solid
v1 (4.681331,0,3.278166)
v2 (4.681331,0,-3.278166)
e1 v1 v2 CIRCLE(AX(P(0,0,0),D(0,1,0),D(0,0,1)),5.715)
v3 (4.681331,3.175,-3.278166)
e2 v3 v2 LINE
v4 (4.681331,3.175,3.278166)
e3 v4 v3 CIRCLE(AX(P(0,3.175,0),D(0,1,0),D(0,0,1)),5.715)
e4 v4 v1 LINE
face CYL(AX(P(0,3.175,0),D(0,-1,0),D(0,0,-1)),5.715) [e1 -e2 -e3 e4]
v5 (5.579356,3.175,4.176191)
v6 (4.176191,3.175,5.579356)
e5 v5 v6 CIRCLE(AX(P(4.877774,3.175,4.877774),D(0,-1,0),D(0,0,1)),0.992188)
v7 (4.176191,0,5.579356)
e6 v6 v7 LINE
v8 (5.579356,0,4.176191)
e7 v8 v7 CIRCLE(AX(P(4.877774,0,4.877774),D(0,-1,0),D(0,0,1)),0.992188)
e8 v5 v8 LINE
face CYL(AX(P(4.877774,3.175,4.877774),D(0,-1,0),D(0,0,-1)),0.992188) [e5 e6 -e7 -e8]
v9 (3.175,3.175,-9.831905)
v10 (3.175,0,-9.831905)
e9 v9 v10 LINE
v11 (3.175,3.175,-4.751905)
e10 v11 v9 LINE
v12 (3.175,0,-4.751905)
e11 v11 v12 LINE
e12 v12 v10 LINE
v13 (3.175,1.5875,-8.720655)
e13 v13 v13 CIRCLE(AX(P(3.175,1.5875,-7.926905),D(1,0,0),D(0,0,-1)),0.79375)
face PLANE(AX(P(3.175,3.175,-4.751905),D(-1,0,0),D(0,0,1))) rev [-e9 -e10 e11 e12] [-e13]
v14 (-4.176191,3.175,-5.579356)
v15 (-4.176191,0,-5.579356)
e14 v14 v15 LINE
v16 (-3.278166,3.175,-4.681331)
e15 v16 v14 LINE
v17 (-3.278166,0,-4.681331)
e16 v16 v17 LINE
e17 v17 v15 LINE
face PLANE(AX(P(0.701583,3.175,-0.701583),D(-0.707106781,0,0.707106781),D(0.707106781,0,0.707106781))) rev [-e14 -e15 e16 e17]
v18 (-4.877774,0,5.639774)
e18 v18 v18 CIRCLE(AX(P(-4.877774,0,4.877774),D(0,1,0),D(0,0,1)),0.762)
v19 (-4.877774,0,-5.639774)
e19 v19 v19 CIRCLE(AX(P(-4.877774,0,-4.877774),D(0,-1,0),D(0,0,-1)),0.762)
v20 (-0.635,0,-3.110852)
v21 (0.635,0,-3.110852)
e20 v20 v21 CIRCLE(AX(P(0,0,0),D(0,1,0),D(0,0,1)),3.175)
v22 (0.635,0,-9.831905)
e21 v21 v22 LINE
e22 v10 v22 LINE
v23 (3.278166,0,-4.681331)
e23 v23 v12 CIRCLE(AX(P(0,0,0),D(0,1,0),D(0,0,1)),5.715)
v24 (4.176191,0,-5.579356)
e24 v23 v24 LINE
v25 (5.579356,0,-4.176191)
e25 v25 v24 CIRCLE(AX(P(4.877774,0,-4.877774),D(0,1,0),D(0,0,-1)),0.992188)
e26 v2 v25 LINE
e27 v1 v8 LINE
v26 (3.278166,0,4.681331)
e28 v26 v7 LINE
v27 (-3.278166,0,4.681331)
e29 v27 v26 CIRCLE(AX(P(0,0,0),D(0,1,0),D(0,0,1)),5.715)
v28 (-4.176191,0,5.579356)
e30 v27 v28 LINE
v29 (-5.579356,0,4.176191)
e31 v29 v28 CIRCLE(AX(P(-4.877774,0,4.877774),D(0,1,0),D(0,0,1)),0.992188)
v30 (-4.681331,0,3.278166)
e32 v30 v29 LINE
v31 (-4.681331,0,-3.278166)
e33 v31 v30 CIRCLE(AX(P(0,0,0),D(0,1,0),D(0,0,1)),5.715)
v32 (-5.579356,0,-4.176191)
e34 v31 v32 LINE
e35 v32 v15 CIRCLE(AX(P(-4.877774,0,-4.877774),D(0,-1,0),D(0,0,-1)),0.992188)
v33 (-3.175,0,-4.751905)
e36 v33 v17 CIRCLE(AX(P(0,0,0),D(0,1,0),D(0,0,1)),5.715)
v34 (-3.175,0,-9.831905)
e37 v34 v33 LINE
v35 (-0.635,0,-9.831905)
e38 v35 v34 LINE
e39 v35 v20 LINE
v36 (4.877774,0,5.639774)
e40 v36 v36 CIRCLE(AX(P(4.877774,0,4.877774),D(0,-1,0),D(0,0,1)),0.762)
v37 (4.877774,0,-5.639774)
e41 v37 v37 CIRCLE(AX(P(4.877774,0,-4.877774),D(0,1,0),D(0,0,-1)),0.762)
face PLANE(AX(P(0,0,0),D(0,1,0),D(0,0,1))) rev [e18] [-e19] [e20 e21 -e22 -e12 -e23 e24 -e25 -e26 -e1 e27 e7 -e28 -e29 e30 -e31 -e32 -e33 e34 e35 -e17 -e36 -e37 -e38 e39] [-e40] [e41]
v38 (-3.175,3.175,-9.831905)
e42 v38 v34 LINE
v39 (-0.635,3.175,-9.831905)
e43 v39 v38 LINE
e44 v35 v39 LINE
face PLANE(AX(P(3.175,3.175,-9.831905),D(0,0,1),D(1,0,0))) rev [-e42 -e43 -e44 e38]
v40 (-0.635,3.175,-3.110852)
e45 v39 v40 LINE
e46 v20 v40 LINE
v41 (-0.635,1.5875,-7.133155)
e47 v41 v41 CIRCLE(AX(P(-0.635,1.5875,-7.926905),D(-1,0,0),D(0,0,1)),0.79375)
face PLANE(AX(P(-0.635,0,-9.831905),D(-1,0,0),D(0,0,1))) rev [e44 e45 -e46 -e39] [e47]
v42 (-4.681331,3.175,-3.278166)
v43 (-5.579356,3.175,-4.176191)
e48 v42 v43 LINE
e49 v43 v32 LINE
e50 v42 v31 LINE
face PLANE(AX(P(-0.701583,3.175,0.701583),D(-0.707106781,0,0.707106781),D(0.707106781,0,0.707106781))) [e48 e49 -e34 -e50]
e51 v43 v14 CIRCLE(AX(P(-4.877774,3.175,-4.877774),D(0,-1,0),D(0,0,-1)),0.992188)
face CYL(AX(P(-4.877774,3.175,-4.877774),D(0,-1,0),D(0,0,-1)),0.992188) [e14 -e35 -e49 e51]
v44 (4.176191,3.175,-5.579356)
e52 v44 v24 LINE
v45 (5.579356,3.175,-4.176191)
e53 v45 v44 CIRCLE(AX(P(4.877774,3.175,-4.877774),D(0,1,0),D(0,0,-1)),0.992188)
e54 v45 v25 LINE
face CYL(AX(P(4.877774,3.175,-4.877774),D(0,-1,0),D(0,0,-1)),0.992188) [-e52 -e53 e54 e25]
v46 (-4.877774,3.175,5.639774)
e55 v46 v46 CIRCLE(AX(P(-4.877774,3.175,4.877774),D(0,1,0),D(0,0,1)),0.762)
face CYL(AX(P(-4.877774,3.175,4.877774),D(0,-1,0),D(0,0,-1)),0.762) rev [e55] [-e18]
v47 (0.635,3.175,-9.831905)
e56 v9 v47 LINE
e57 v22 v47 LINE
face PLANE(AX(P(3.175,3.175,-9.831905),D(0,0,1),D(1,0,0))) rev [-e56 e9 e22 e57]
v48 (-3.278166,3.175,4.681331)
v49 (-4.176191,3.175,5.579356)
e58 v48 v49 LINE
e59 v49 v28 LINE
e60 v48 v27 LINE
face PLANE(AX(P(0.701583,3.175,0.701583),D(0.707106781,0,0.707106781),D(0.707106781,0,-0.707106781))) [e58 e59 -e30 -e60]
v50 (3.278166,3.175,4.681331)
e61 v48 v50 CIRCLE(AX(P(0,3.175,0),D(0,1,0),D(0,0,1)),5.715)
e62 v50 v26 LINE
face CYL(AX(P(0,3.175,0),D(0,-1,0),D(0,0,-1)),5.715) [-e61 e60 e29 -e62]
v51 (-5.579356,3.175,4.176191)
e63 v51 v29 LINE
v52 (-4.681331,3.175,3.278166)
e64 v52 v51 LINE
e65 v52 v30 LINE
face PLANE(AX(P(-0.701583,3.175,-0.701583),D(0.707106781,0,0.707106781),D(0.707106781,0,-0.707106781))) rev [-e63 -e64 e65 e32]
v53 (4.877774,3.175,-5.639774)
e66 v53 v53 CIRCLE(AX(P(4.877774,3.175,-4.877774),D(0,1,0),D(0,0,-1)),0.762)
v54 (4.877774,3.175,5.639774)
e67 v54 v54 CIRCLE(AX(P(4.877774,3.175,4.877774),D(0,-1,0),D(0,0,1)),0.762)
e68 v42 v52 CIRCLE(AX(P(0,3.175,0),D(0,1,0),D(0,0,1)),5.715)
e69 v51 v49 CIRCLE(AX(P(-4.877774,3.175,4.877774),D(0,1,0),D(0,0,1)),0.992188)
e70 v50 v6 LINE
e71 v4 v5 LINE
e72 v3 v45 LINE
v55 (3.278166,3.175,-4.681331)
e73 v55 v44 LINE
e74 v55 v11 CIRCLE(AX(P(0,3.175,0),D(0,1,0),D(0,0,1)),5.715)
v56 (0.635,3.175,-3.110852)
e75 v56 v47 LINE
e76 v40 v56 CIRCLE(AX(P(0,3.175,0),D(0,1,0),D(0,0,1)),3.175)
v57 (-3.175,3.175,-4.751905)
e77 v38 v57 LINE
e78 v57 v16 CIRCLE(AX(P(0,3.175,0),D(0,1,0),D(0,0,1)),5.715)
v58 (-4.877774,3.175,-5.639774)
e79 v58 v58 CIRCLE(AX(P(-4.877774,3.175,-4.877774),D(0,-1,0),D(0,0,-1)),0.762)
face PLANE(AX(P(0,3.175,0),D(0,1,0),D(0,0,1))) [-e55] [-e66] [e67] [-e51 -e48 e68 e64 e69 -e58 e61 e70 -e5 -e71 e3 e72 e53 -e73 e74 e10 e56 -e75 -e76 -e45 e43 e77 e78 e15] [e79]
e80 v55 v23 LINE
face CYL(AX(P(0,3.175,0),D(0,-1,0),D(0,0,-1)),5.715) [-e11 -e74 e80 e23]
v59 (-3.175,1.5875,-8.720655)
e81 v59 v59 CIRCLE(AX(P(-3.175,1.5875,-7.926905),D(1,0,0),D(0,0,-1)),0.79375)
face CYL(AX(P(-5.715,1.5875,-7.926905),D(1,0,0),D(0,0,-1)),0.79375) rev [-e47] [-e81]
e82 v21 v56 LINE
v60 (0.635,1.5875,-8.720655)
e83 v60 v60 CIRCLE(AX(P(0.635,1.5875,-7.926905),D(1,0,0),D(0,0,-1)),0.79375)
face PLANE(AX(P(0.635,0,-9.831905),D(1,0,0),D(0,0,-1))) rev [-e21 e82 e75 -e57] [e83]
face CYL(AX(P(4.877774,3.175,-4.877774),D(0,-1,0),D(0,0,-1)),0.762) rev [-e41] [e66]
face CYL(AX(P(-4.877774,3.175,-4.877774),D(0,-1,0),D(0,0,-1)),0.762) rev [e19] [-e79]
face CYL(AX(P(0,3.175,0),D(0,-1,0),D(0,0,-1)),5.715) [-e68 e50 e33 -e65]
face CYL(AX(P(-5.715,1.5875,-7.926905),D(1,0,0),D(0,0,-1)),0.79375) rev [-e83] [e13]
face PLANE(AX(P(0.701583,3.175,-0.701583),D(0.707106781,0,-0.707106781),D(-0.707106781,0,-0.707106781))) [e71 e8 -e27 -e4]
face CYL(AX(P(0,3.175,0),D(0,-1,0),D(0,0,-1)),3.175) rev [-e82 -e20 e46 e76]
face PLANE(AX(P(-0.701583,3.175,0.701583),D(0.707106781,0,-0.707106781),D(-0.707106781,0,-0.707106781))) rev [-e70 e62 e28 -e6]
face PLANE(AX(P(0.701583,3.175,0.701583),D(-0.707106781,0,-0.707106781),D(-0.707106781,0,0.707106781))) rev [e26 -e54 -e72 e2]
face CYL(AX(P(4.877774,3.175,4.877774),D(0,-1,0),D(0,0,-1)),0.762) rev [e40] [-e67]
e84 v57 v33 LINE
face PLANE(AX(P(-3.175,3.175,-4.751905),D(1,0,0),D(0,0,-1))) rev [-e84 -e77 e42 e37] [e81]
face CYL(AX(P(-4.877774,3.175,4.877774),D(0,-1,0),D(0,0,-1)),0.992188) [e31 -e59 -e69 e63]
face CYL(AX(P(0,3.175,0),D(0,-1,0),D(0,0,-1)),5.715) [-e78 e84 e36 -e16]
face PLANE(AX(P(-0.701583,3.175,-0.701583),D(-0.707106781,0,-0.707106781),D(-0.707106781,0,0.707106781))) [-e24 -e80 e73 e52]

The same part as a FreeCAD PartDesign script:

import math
import FreeCAD as App
import Part
import Sketcher
from FreeCAD import Vector
Q = App.Units.Quantity

doc = App.newDocument("Part")
params = doc.addObject("Spreadsheet::Sheet", "Params")
for row, (alias, value) in enumerate([
    ("sketch1_diameter", "0.25 in"),
    ("sketch1_height", "0.2 in"),
    ("sketch1_radius", "0.225 in"),
    ("sketch1_width", "0.25 in"),
    ("pad1_length", "0.125 in"),
    ("sketch2_width", "0.05 in"),
    ("pocket1_length", "0.125 in"),
    ("sketch3_diameter", "0.0625 in"),
    ("sketch4_diameter", "0.06 in"),
    ("sketch4_radius", "0.225 in"),
    ("sketch4_length", "0.05 in"),
    ("pad2_length", "0.125 in"),
    ("sketch5_diameter", "0.06 in"),
    ("sketch5_radius", "0.225 in"),
    ("sketch5_length", "0.05 in"),
    ("pad3_length", "0.125 in"),
], start=1):
    params.set(f"A{row}", alias)
    params.set(f"B{row}", "=" + value)
    params.setAlias(f"B{row}", alias)

body = doc.addObject("PartDesign::Body", "Body")

sketch1 = body.newObject("Sketcher::SketchObject", "Sketch")
sketch1.AttachmentSupport = (doc.getObject("XZ_Plane"), [""])
sketch1.MapMode = "FlatFace"
sketch1.addGeometry([
    Part.LineSegment(Vector(3.2, -4.8, 0), Vector(3.2, -9.8, 0)),
    Part.LineSegment(Vector(3.2, -9.8, 0), Vector(-3.2, -9.8, 0)),
    Part.LineSegment(Vector(-3.2, -9.8, 0), Vector(-3.2, -4.8, 0)),
    Part.ArcOfCircle(Part.Circle(Vector(0, 0, 0), Vector(0, 0, 1), 5.7), math.radians(-56), math.radians(236)),
    Part.Circle(Vector(0, 0, 0), Vector(0, 0, 1), 3.2),
], False)
sketch1.addConstraint([
    Sketcher.Constraint("Coincident", 0, 2, 1, 1),
    Sketcher.Constraint("Coincident", 1, 2, 2, 1),
    Sketcher.Constraint("Coincident", 2, 2, 3, 2),
    Sketcher.Constraint("Coincident", 3, 1, 0, 1),
    Sketcher.Constraint("Vertical", 0),
    Sketcher.Constraint("Horizontal", 1),
    Sketcher.Constraint("Vertical", 2),
    Sketcher.Constraint("Coincident", 3, 3, -1, 1),
    Sketcher.Constraint("Coincident", 4, 3, -1, 1),
    Sketcher.Constraint("Horizontal", 2, 2, 3, 1),
    Sketcher.Constraint("Diameter", 4, Q("0.25 in")),
    Sketcher.Constraint("DistanceY", 0, 2, 0, 1, Q("0.2 in")),
    Sketcher.Constraint("Radius", 3, Q("0.225 in")),
    Sketcher.Constraint("DistanceX", 1, 2, 1, 1, Q("0.25 in")),
])
sketch1.setExpression("Constraints[10]", "Params.sketch1_diameter")
sketch1.setExpression("Constraints[11]", "Params.sketch1_height")
sketch1.setExpression("Constraints[12]", "Params.sketch1_radius")
sketch1.setExpression("Constraints[13]", "Params.sketch1_width")
pad1 = body.newObject("PartDesign::Pad", "Pad")
pad1.Profile = sketch1
pad1.setExpression("Length", "Params.pad1_length")
pad1.Reversed = True

sketch2 = body.newObject("Sketcher::SketchObject", "Sketch001")
sketch2.AttachmentSupport = (doc.getObject("XZ_Plane"), [""])
sketch2.MapMode = "FlatFace"
sketch2.AttachmentOffset = App.Placement(Vector(0, 0, -0.125 * 25.4), App.Rotation())
sketch2.addGeometry([
    Part.LineSegment(Vector(-0.6, -9.8, 0), Vector(-0.6, -3.1, 0)),
    Part.LineSegment(Vector(-0.6, -3.1, 0), Vector(0.6, -3.1, 0)),
    Part.LineSegment(Vector(0.6, -3.1, 0), Vector(0.6, -9.8, 0)),
    Part.LineSegment(Vector(0.6, -9.8, 0), Vector(-0.6, -9.8, 0)),
], False)
sketch2.addConstraint([
    Sketcher.Constraint("Coincident", 0, 2, 1, 1),
    Sketcher.Constraint("Coincident", 1, 2, 2, 1),
    Sketcher.Constraint("Coincident", 2, 2, 3, 1),
    Sketcher.Constraint("Coincident", 3, 2, 0, 1),
    Sketcher.Constraint("Vertical", 0),
    Sketcher.Constraint("Horizontal", 1),
    Sketcher.Constraint("Vertical", 2),
    Sketcher.Constraint("Horizontal", 3),
    Sketcher.Constraint("DistanceX", 1, 1, 1, 2, Q("0.05 in")),
    Sketcher.Constraint("DistanceX", 0, 2, -1, 1, Q("0.025 in")),
    Sketcher.Constraint("DistanceY", 0, 1, 0, 2, Q("6.721053 mm")),
    Sketcher.Constraint("DistanceY", 0, 2, -1, 1, Q("3.110852 mm")),
])
sketch2.setExpression("Constraints[8]", "Params.sketch2_width")
pocket1 = body.newObject("PartDesign::Pocket", "Pocket")
pocket1.Profile = sketch2
pocket1.setExpression("Length", "Params.pocket1_length")
pocket1.Reversed = True

sketch3 = body.newObject("Sketcher::SketchObject", "Sketch002")
sketch3.AttachmentSupport = (doc.getObject("YZ_Plane"), [""])
sketch3.MapMode = "FlatFace"
sketch3.AttachmentOffset = App.Placement(Vector(0, 0, 0.125 * 25.4), App.Rotation())
sketch3.addGeometry(Part.Circle(Vector(1.6, -7.9, 0), Vector(0, 0, 1), 0.8), False)
sketch3.addConstraint([
    Sketcher.Constraint("Diameter", 0, Q("0.0625 in")),
    Sketcher.Constraint("DistanceX", -1, 1, 0, 3, Q("0.0625 in")),
    Sketcher.Constraint("DistanceY", 0, 3, -1, 1, Q("7.926905 mm")),
])
sketch3.setExpression("Constraints[0]", "Params.sketch3_diameter")
pocket2 = body.newObject("PartDesign::Pocket", "Pocket001")
pocket2.Profile = sketch3
pocket2.Type = "ThroughAll"

sketch4 = body.newObject("Sketcher::SketchObject", "Sketch003")
sketch4.AttachmentSupport = (doc.getObject("XZ_Plane"), [""])
sketch4.MapMode = "FlatFace"
sketch4.addGeometry([
    Part.LineSegment(Vector(-4.2, -5.6, 0), Vector(-3.3, -4.7, 0)),
    Part.ArcOfCircle(Part.Circle(Vector(0, 0, 0), Vector(0, 0, 1), 5.7), math.radians(-145), math.radians(-125)),
    Part.LineSegment(Vector(-4.7, -3.3, 0), Vector(-5.6, -4.2, 0)),
    Part.ArcOfCircle(Part.Circle(Vector(-4.9, -4.9, 0), Vector(0, 0, 1), 1), math.radians(135), math.radians(315)),
    Part.Circle(Vector(-4.9, -4.9, 0), Vector(0, 0, 1), 0.8),
], False)
sketch4.addConstraint([
    Sketcher.Constraint("Coincident", 0, 2, 1, 2),
    Sketcher.Constraint("Coincident", 1, 1, 2, 1),
    Sketcher.Constraint("Tangent", 2, 2, 3, 1),
    Sketcher.Constraint("Tangent", 3, 2, 0, 1),
    Sketcher.Constraint("Coincident", 1, 3, -1, 1),
    Sketcher.Constraint("Coincident", 4, 3, 3, 3),
    Sketcher.Constraint("Parallel", 0, 2),
    Sketcher.Constraint("Equal", 0, 2),
    Sketcher.Constraint("Diameter", 4, Q("0.06 in")),
    Sketcher.Constraint("Angle", 0, Q("45 deg")),
    Sketcher.Constraint("Radius", 1, Q("0.225 in")),
    Sketcher.Constraint("Distance", 0, Q("0.05 in")),
    Sketcher.Constraint("Radius", 3, Q("0.992188 mm")),
])
sketch4.setExpression("Constraints[8]", "Params.sketch4_diameter")
sketch4.setExpression("Constraints[10]", "Params.sketch4_radius")
sketch4.setExpression("Constraints[11]", "Params.sketch4_length")
pad2 = body.newObject("PartDesign::Pad", "Pad001")
pad2.Profile = sketch4
pad2.setExpression("Length", "Params.pad2_length")
pad2.Reversed = True
doc.recompute()

mirrored = body.newObject("PartDesign::Mirrored", "Mirrored")
mirrored.Originals = [pad2]
mirrored.MirrorPlane = (doc.getObject("YZ_Plane"), [""])
body.Tip = mirrored
doc.recompute()

mirrored2 = body.newObject("PartDesign::Mirrored", "Mirrored001")
mirrored2.Originals = [pad2]
mirrored2.MirrorPlane = (doc.getObject("XY_Plane"), [""])
body.Tip = mirrored2

sketch5 = body.newObject("Sketcher::SketchObject", "Sketch004")
sketch5.AttachmentSupport = (doc.getObject("XZ_Plane"), [""])
sketch5.MapMode = "FlatFace"
sketch5.addGeometry([
    Part.LineSegment(Vector(4.2, 5.6, 0), Vector(3.3, 4.7, 0)),
    Part.ArcOfCircle(Part.Circle(Vector(0, 0, 0), Vector(0, 0, 1), 5.7), math.radians(35), math.radians(55)),
    Part.LineSegment(Vector(4.7, 3.3, 0), Vector(5.6, 4.2, 0)),
    Part.ArcOfCircle(Part.Circle(Vector(4.9, 4.9, 0), Vector(0, 0, 1), 1), math.radians(-45), math.radians(135)),
    Part.Circle(Vector(4.9, 4.9, 0), Vector(0, 0, 1), 0.8),
], False)
sketch5.addConstraint([
    Sketcher.Constraint("Coincident", 0, 2, 1, 2),
    Sketcher.Constraint("Coincident", 1, 1, 2, 1),
    Sketcher.Constraint("Tangent", 2, 2, 3, 1),
    Sketcher.Constraint("Tangent", 3, 2, 0, 1),
    Sketcher.Constraint("Coincident", 1, 3, -1, 1),
    Sketcher.Constraint("Coincident", 4, 3, 3, 3),
    Sketcher.Constraint("Parallel", 0, 2),
    Sketcher.Constraint("Equal", 0, 2),
    Sketcher.Constraint("Diameter", 4, Q("0.06 in")),
    Sketcher.Constraint("Angle", 0, Q("-135 deg")),
    Sketcher.Constraint("Radius", 1, Q("0.225 in")),
    Sketcher.Constraint("Distance", 0, Q("0.05 in")),
    Sketcher.Constraint("Radius", 3, Q("0.992188 mm")),
])
sketch5.setExpression("Constraints[8]", "Params.sketch5_diameter")
sketch5.setExpression("Constraints[10]", "Params.sketch5_radius")
sketch5.setExpression("Constraints[11]", "Params.sketch5_length")
pad3 = body.newObject("PartDesign::Pad", "Pad002")
pad3.Profile = sketch5
pad3.setExpression("Length", "Params.pad3_length")
pad3.Reversed = True

doc.recompute()
